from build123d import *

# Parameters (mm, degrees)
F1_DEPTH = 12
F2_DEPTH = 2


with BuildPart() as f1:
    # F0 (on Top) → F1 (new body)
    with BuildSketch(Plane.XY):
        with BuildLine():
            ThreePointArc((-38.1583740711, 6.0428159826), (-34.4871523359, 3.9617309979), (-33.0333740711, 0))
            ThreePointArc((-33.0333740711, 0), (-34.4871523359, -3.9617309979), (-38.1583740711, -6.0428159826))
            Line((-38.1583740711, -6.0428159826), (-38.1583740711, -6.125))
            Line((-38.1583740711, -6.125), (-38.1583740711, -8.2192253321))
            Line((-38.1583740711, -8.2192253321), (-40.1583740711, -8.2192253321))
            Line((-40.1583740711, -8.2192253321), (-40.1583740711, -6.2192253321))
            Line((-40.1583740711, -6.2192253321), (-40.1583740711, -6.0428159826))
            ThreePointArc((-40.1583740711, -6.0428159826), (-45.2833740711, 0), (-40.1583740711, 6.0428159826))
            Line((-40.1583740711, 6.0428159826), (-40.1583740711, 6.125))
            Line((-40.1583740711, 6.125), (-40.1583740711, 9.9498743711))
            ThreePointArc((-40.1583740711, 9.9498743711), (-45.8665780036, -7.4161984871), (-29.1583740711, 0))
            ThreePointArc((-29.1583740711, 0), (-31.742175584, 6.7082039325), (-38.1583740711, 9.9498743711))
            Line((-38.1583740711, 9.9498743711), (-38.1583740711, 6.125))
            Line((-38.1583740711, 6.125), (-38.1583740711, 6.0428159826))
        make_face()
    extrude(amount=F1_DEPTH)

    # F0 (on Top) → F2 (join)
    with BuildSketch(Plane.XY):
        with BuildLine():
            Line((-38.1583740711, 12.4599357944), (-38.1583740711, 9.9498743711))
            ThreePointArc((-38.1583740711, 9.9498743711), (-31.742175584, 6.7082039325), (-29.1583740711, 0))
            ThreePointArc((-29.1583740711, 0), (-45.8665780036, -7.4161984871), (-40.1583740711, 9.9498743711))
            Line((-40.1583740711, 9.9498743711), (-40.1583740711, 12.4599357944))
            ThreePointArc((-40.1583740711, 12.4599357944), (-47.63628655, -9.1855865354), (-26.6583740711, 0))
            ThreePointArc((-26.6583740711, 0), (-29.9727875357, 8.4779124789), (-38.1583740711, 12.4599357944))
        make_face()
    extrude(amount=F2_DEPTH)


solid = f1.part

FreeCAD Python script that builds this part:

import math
import FreeCAD as App
import Part
import Sketcher
from FreeCAD import Vector
Q = App.Units.Quantity

doc = App.newDocument("Part")
body = doc.addObject("PartDesign::Body", "Body")

sketch1 = body.newObject("Sketcher::SketchObject", "Sketch")
sketch1.AttachmentSupport = (doc.getObject("XY_Plane"), [""])
sketch1.MapMode = "FlatFace"
sketch1.addGeometry([
    Part.ArcOfCircle(Part.Circle(Vector(-39.2, 0, 0), Vector(0, 0, 1), 6.1), math.radians(0), math.radians(81)),
    Part.ArcOfCircle(Part.Circle(Vector(-39.2, 0, 0), Vector(0, 0, 1), 6.1), math.radians(-81), math.radians(0)),
    Part.LineSegment(Vector(-38.2, -6, 0), Vector(-38.2, -8.2, 0)),
    Part.LineSegment(Vector(-38.2, -8.2, 0), Vector(-40.2, -8.2, 0)),
    Part.LineSegment(Vector(-40.2, -8.2, 0), Vector(-40.2, -6, 0)),
    Part.ArcOfCircle(Part.Circle(Vector(-39.2, 0, 0), Vector(0, 0, 1), 6.1), math.radians(99), math.radians(261)),
    Part.LineSegment(Vector(-40.2, 6, 0), Vector(-40.2, 9.9, 0)),
    Part.ArcOfCircle(Part.Circle(Vector(-39.2, 0, 0), Vector(0, 0, 1), 10), math.radians(96), math.radians(360)),
    Part.ArcOfCircle(Part.Circle(Vector(-39.2, 0, 0), Vector(0, 0, 1), 10), math.radians(0), math.radians(84)),
    Part.LineSegment(Vector(-38.2, 9.9, 0), Vector(-38.2, 6, 0)),
], False)
sketch1.addConstraint([
    Sketcher.Constraint("Tangent", 0, 1, 1, 2),
    Sketcher.Constraint("Coincident", 1, 1, 2, 1),
    Sketcher.Constraint("Coincident", 2, 2, 3, 1),
    Sketcher.Constraint("Coincident", 3, 2, 4, 1),
    Sketcher.Constraint("Coincident", 4, 2, 5, 2),
    Sketcher.Constraint("Coincident", 5, 1, 6, 1),
    Sketcher.Constraint("Coincident", 6, 2, 7, 1),
    Sketcher.Constraint("Tangent", 7, 2, 8, 1),
    Sketcher.Constraint("Coincident", 8, 2, 9, 1),
    Sketcher.Constraint("Coincident", 9, 2, 0, 2),
    Sketcher.Constraint("Vertical", 2),
    Sketcher.Constraint("Horizontal", 3),
    Sketcher.Constraint("Vertical", 4),
    Sketcher.Constraint("Vertical", 6),
    Sketcher.Constraint("Vertical", 9),
    Sketcher.Constraint("Coincident", 5, 3, 0, 3),
    Sketcher.Constraint("Coincident", 7, 3, 0, 3),
    Sketcher.Constraint("Equal", 0, 1),
    Sketcher.Constraint("Equal", 1, 5),
    Sketcher.Constraint("Equal", 7, 8),
    Sketcher.Constraint("Symmetric", 4, 2, 5, 1, -1),
    Sketcher.Constraint("PointOnObject", 0, 1, -1),
    Sketcher.Constraint("PointOnObject", 7, 2, -1),
    Sketcher.Constraint("Horizontal", 1, 1, 4, 2),
    Sketcher.Constraint("Horizontal", 6, 2, 8, 2),
    Sketcher.Constraint("Radius", 7, Q("10 mm")),
    Sketcher.Constraint("DistanceX", 3, 2, 3, 1, Q("2 mm")),
    Sketcher.Constraint("Radius", 0, Q("6.125 mm")),
    Sketcher.Constraint("DistanceY", 2, 2, 2, 1, Q("2.176409 mm")),
    Sketcher.Constraint("DistanceX", 0, 3, -1, 1, Q("39.158374 mm")),
])
pad1 = body.newObject("PartDesign::Pad", "Pad")
pad1.Profile = sketch1
pad1.Length = 12

sketch2 = body.newObject("Sketcher::SketchObject", "Sketch001")
sketch2.AttachmentSupport = (doc.getObject("XY_Plane"), [""])
sketch2.MapMode = "FlatFace"
sketch2.addGeometry([
    Part.LineSegment(Vector(-38.2, 12.5, 0), Vector(-38.2, 9.9, 0)),
    Part.ArcOfCircle(Part.Circle(Vector(-39.2, 0, 0), Vector(0, 0, 1), 10), math.radians(0), math.radians(84)),
    Part.ArcOfCircle(Part.Circle(Vector(-39.2, 0, 0), Vector(0, 0, 1), 10), math.radians(96), math.radians(360)),
    Part.LineSegment(Vector(-40.2, 9.9, 0), Vector(-40.2, 12.5, 0)),
    Part.ArcOfCircle(Part.Circle(Vector(-39.2, 0, 0), Vector(0, 0, 1), 12.5), math.radians(95), math.radians(360)),
    Part.ArcOfCircle(Part.Circle(Vector(-39.2, 0, 0), Vector(0, 0, 1), 12.5), math.radians(0), math.radians(85)),
], False)
sketch2.addConstraint([
    Sketcher.Constraint("Coincident", 0, 2, 1, 2),
    Sketcher.Constraint("Tangent", 1, 1, 2, 2),
    Sketcher.Constraint("Coincident", 2, 1, 3, 1),
    Sketcher.Constraint("Coincident", 3, 2, 4, 1),
    Sketcher.Constraint("Tangent", 4, 2, 5, 1),
    Sketcher.Constraint("Coincident", 5, 2, 0, 1),
    Sketcher.Constraint("Vertical", 0),
    Sketcher.Constraint("Vertical", 3),
    Sketcher.Constraint("Coincident", 4, 3, 1, 3),
    Sketcher.Constraint("Equal", 1, 2),
    Sketcher.Constraint("Equal", 4, 5),
    Sketcher.Constraint("PointOnObject", 1, 3, -1),
    Sketcher.Constraint("PointOnObject", 1, 1, -1),
    Sketcher.Constraint("PointOnObject", 4, 2, -1),
    Sketcher.Constraint("Horizontal", 0, 2, 2, 1),
    Sketcher.Constraint("Radius", 1, Q("10 mm")),
    Sketcher.Constraint("Radius", 4, Q("12.5 mm")),
    Sketcher.Constraint("DistanceX", 1, 3, 0, 2, Q("1 mm")),
    Sketcher.Constraint("DistanceX", 1, 3, -1, 1, Q("39.158374 mm")),
])
pad2 = body.newObject("PartDesign::Pad", "Pad001")
pad2.Profile = sketch2
pad2.Length = 2

doc.recompute()
